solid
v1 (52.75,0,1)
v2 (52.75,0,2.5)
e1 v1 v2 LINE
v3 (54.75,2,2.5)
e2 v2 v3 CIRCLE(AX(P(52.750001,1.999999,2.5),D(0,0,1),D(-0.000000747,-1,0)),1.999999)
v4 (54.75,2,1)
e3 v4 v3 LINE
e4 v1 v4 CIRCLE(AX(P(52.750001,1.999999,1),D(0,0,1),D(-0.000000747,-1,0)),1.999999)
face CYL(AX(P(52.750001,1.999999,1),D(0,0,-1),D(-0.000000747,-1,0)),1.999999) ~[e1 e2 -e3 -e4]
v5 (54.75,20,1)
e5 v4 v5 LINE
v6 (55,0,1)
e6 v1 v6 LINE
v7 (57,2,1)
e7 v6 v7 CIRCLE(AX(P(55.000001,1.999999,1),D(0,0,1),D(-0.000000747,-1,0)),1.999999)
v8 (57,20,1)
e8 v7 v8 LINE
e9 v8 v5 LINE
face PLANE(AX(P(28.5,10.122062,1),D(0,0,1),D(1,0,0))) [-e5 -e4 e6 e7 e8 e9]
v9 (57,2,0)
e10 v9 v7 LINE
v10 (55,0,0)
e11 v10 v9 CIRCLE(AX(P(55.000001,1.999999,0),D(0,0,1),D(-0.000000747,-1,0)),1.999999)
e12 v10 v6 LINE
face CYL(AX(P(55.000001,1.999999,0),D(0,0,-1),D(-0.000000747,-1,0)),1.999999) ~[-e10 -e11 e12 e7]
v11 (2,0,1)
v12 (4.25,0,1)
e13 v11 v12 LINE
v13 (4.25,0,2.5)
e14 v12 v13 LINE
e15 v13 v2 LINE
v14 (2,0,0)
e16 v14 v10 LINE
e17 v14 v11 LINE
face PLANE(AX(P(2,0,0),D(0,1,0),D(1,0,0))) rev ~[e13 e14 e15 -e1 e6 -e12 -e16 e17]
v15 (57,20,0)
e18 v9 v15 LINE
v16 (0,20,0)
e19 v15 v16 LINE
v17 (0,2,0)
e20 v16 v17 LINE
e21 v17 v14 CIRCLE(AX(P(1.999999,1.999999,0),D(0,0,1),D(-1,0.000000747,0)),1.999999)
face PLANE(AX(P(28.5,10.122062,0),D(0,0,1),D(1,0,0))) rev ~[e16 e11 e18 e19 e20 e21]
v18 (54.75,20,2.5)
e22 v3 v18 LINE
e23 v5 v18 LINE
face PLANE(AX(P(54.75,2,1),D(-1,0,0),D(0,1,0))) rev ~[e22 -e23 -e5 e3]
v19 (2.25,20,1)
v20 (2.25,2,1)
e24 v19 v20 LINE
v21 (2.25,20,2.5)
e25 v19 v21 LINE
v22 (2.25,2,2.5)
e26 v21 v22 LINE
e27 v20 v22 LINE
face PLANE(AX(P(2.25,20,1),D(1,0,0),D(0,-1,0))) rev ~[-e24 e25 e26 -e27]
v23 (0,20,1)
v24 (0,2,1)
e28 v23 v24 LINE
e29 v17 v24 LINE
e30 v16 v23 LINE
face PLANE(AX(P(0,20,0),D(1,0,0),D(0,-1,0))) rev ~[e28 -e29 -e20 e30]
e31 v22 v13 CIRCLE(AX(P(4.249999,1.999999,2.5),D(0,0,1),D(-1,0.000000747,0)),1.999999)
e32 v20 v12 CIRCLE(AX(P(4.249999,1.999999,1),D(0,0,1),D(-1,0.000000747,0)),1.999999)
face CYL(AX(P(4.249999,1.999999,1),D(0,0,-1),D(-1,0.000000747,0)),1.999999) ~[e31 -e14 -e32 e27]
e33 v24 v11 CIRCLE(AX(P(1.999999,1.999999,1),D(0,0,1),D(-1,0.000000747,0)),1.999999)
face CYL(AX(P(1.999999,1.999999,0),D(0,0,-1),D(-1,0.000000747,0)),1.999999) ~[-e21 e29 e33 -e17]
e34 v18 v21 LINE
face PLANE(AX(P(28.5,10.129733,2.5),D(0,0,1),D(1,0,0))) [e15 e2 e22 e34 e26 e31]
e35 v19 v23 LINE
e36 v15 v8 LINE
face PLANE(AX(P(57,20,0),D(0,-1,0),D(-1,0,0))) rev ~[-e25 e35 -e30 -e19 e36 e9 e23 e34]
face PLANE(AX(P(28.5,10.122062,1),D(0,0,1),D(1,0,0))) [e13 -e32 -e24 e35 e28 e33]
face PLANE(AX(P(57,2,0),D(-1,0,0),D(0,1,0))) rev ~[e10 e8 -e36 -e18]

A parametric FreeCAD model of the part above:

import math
import FreeCAD as App
import Part
import Sketcher
Q = App.Units.Quantity

doc = App.newDocument("Part")
body = doc.addObject("PartDesign::Body", "Body")

# Sketch on XY plane
sketch1 = body.newObject("Sketcher::SketchObject", "Sketch")
sketch1.AttachmentSupport = (doc.getObject("XY_Plane"), [""])
sketch1.MapMode = "FlatFace"
sketch1.addGeometry(Part.ArcOfCircle(Part.Circle(App.Vector(2, 2, 0), App.Vector(0, 0, 1), 2), math.radians(180), math.radians(270)), False)
sketch1.addGeometry(Part.LineSegment(App.Vector(2, 0, 0), App.Vector(55, 0, 0)), False)
sketch1.addGeometry(Part.ArcOfCircle(Part.Circle(App.Vector(55, 2, 0), App.Vector(0, 0, 1), 2), math.radians(-90), math.radians(0)), False)
sketch1.addGeometry(Part.LineSegment(App.Vector(57, 2, 0), App.Vector(57, 20, 0)), False)
sketch1.addGeometry(Part.LineSegment(App.Vector(57, 20, 0), App.Vector(0, 20, 0)), False)
sketch1.addGeometry(Part.LineSegment(App.Vector(0, 20, 0), App.Vector(0, 2, 0)), False)
sketch1.addConstraint(Sketcher.Constraint("Tangent", 0, 2, 1, 1))
sketch1.addConstraint(Sketcher.Constraint("Tangent", 1, 2, 2, 1))
sketch1.addConstraint(Sketcher.Constraint("Tangent", 2, 2, 3, 1))
sketch1.addConstraint(Sketcher.Constraint("Coincident", 3, 2, 4, 1))
sketch1.addConstraint(Sketcher.Constraint("Coincident", 4, 2, 5, 1))
sketch1.addConstraint(Sketcher.Constraint("Tangent", 5, 2, 0, 1))
sketch1.addConstraint(Sketcher.Constraint("Horizontal", 1))
sketch1.addConstraint(Sketcher.Constraint("Vertical", 3))
sketch1.addConstraint(Sketcher.Constraint("Horizontal", 4))
sketch1.addConstraint(Sketcher.Constraint("Vertical", 5))
sketch1.addConstraint(Sketcher.Constraint("Equal", 0, 2))
sketch1.addConstraint(Sketcher.Constraint("PointOnObject", 0, 2, -1))
sketch1.addConstraint(Sketcher.Constraint("PointOnObject", 4, 2, -2))
sketch1.addConstraint(Sketcher.Constraint("Radius", 0, Q("1.999999 mm")))
sketch1.addConstraint(Sketcher.Constraint("DistanceX", 1, 1, 1, 2, Q("53 mm")))
sketch1.addConstraint(Sketcher.Constraint("DistanceY", 3, 1, 3, 2, Q("18 mm")))
pad1 = body.newObject("PartDesign::Pad", "Pad")
pad1.Profile = sketch1
pad1.Length = 1

# Sketch on XY plane
sketch2 = body.newObject("Sketcher::SketchObject", "Sketch001")
sketch2.AttachmentSupport = (doc.getObject("XY_Plane"), [""])
sketch2.MapMode = "FlatFace"
sketch2.AttachmentOffset = App.Placement(App.Vector(0, 0, 1), App.Rotation())
sketch2.addGeometry(Part.LineSegment(App.Vector(54.8, 20, 0), App.Vector(2.2, 20, 0)), False)
sketch2.addGeometry(Part.LineSegment(App.Vector(2.2, 20, 0), App.Vector(2.2, 2, 0)), False)
sketch2.addGeometry(Part.ArcOfCircle(Part.Circle(App.Vector(4.2, 2, 0), App.Vector(0, 0, 1), 2), math.radians(180), math.radians(270)), False)
sketch2.addGeometry(Part.LineSegment(App.Vector(4.2, 0, 0), App.Vector(52.8, 0, 0)), False)
sketch2.addGeometry(Part.ArcOfCircle(Part.Circle(App.Vector(52.8, 2, 0), App.Vector(0, 0, 1), 2), math.radians(-90), math.radians(0)), False)
sketch2.addGeometry(Part.LineSegment(App.Vector(54.8, 2, 0), App.Vector(54.8, 20, 0)), False)
sketch2.addConstraint(Sketcher.Constraint("Coincident", 0, 2, 1, 1))
sketch2.addConstraint(Sketcher.Constraint("Tangent", 1, 2, 2, 1))
sketch2.addConstraint(Sketcher.Constraint("Tangent", 2, 2, 3, 1))
sketch2.addConstraint(Sketcher.Constraint("Tangent", 3, 2, 4, 1))
sketch2.addConstraint(Sketcher.Constraint("Tangent", 4, 2, 5, 1))
sketch2.addConstraint(Sketcher.Constraint("Coincident", 5, 2, 0, 1))
sketch2.addConstraint(Sketcher.Constraint("Horizontal", 0))
sketch2.addConstraint(Sketcher.Constraint("Vertical", 1))
sketch2.addConstraint(Sketcher.Constraint("Horizontal", 3))
sketch2.addConstraint(Sketcher.Constraint("Vertical", 5))
sketch2.addConstraint(Sketcher.Constraint("Equal", 2, 4))
sketch2.addConstraint(Sketcher.Constraint("PointOnObject", 2, 2, -1))
sketch2.addConstraint(Sketcher.Constraint("Radius", 2, Q("1.999999 mm")))
sketch2.addConstraint(Sketcher.Constraint("DistanceY", 1, 2, 1, 1, Q("18 mm")))
sketch2.addConstraint(Sketcher.Constraint("DistanceX", 0, 2, 0, 1, Q("52.5 mm")))
sketch2.addConstraint(Sketcher.Constraint("DistanceX", -1, 1, 2, 3, Q("4.249999 mm")))
pad2 = body.newObject("PartDesign::Pad", "Pad001")
pad2.Profile = sketch2
pad2.Length = 1.5

doc.recompute()
